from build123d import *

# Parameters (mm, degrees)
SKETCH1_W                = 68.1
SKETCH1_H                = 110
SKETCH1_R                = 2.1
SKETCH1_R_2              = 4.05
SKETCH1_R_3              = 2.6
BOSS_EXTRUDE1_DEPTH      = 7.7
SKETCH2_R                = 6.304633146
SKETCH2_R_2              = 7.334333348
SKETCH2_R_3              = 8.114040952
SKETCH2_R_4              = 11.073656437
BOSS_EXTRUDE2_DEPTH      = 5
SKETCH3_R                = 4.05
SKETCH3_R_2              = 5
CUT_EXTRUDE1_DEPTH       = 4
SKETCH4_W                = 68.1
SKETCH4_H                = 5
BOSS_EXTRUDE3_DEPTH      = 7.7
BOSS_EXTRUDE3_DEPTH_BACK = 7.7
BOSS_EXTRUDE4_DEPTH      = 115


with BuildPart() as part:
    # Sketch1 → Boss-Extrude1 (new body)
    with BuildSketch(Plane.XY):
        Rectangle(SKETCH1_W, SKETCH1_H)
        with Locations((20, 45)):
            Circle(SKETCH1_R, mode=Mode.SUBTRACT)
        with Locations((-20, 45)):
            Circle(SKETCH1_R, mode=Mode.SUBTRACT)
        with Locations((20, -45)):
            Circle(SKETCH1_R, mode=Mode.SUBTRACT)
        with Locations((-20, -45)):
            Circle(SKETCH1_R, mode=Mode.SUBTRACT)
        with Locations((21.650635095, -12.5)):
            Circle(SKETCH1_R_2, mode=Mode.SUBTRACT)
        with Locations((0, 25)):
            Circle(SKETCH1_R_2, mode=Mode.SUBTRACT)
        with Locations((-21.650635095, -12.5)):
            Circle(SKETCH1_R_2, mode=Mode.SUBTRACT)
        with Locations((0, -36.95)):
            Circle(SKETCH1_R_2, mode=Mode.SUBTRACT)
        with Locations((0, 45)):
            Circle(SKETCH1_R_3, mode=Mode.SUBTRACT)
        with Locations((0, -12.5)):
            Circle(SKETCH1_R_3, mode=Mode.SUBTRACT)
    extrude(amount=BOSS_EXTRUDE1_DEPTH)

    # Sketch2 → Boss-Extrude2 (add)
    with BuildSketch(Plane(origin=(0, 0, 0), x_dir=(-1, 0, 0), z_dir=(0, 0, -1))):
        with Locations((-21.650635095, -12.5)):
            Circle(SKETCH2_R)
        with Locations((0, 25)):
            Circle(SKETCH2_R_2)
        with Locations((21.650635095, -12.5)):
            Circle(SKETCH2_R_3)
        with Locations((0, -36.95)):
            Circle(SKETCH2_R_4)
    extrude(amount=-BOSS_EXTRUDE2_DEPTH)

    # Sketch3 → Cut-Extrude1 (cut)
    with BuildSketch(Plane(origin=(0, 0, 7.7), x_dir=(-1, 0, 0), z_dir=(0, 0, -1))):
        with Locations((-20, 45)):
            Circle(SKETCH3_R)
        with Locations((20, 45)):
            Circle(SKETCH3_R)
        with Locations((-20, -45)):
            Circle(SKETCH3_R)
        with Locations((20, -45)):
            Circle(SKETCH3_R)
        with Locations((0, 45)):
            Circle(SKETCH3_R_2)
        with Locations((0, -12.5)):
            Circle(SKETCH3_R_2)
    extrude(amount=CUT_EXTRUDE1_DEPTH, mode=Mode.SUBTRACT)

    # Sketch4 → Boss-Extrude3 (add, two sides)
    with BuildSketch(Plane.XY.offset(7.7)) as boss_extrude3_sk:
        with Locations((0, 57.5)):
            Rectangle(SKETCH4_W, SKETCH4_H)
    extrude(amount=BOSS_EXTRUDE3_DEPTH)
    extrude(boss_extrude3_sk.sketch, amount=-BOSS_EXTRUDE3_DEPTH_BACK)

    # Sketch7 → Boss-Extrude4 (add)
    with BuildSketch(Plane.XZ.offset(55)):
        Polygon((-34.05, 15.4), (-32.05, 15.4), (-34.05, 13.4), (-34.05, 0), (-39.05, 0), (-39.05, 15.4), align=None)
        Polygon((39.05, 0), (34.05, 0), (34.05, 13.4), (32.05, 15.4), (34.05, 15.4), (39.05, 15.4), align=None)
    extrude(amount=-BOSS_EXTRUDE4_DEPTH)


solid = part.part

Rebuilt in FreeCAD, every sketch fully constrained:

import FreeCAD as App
import Part
import Sketcher

V = App.Vector


def add_polygon(sketch, points):
    """Adds a closed chain of lines whose ends are joined by coincident constraints."""
    first, n = sketch.GeometryCount, len(points)
    for a, b in zip(points, points[1:] + points[:1]):
        sketch.addGeometry(Part.LineSegment(App.Vector(*a, 0), App.Vector(*b, 0)), False)
    for i in range(n):
        sketch.addConstraint(Sketcher.Constraint("Coincident", first + i, 2, first + (i + 1) % n, 1))

doc = App.newDocument("Part")
body = doc.addObject("PartDesign::Body", "Body")

# Sketch on XY plane
sketch1 = doc.addObject("Sketcher::SketchObject", "Sketch")
body.addObject(sketch1)
sketch1.AttachmentSupport = (doc.XY_Plane, [""])
sketch1.MapMode = "FlatFace"
add_polygon(sketch1, [(-34, 55), (-34, -55), (34, -55), (34, 55)])  # lines 0-3
sketch1.addGeometry(Part.Circle(V(-20, -45, 0), V(0, 0, 1), 2.1), False)  # 4
sketch1.addGeometry(Part.Circle(V(-21.7, -12.5, 0), V(0, 0, 1), 4), False)  # 5
sketch1.addGeometry(Part.Circle(V(0, -37, 0), V(0, 0, 1), 4), False)  # 6
sketch1.addGeometry(Part.Circle(V(20, -45, 0), V(0, 0, 1), 2.1), False)  # 7
sketch1.addGeometry(Part.Circle(V(0, -12.5, 0), V(0, 0, 1), 2.6), False)  # 8
sketch1.addGeometry(Part.Circle(V(21.7, -12.5, 0), V(0, 0, 1), 4), False)  # 9
sketch1.addGeometry(Part.Circle(V(-20, 45, 0), V(0, 0, 1), 2.1), False)  # 10
sketch1.addGeometry(Part.Circle(V(0, 25, 0), V(0, 0, 1), 4), False)  # 11
sketch1.addGeometry(Part.Circle(V(0, 45, 0), V(0, 0, 1), 2.6), False)  # 12
sketch1.addGeometry(Part.Circle(V(20, 45, 0), V(0, 0, 1), 2.1), False)  # 13
sketch1.addConstraint([
    Sketcher.Constraint("Vertical", 0),
    Sketcher.Constraint("Horizontal", 1),
    Sketcher.Constraint("Vertical", 2),
    Sketcher.Constraint("Horizontal", 3),
    Sketcher.Constraint("Equal", 5, 6),
    Sketcher.Constraint("Equal", 4, 7),
    Sketcher.Constraint("Equal", 6, 9),
    Sketcher.Constraint("Equal", 7, 10),
    Sketcher.Constraint("Equal", 9, 11),
    Sketcher.Constraint("Equal", 8, 12),
    Sketcher.Constraint("Equal", 10, 13),
    Sketcher.Constraint("Symmetric", 7, 3, 10, 3, -1, 1),
    Sketcher.Constraint("Symmetric", 4, 3, 13, 3, -1, 1),
    Sketcher.Constraint("Symmetric", 0, 2, 2, 2, -1, 1),
    Sketcher.Constraint("Symmetric", 4, 3, 7, 3, -2),
    Sketcher.Constraint("Symmetric", 5, 3, 9, 3, -2),
    Sketcher.Constraint("PointOnObject", 6, 3, -2),
    Sketcher.Constraint("PointOnObject", 8, 3, -2),
    Sketcher.Constraint("PointOnObject", 11, 3, -2),
    Sketcher.Constraint("PointOnObject", 12, 3, -2),
    Sketcher.Constraint("Horizontal", 5, 3, 8, 3),
    Sketcher.Constraint("Horizontal", 10, 3, 12, 3),
    Sketcher.Constraint("Diameter", 4, 4.2),
    Sketcher.Constraint("Diameter", 5, 8.1),
    Sketcher.Constraint("Diameter", 8, 5.2),
    Sketcher.Constraint("DistanceY", 0, 2, 0, 1, 110.0),
    Sketcher.Constraint("DistanceX", 1, 1, 1, 2, 68.1),
    Sketcher.Constraint("DistanceX", 4, 3, -1, 1, 20.0),
    Sketcher.Constraint("DistanceY", 4, 3, -1, 1, 45.0),
    Sketcher.Constraint("DistanceY", -1, 1, 11, 3, 25.0),
    Sketcher.Constraint("DistanceY", 5, 3, -1, 1, 12.5),
    Sketcher.Constraint("DistanceY", 6, 3, -1, 1, 36.95),
    Sketcher.Constraint("DistanceX", 5, 3, 9, 3, 43.30127),
])
pad1 = doc.addObject("PartDesign::Pad", "Pad")
body.addObject(pad1)
pad1.Profile = sketch1
pad1.Length = 7.7

# Sketch on XY plane
sketch2 = doc.addObject("Sketcher::SketchObject", "Sketch001")
body.addObject(sketch2)
sketch2.AttachmentSupport = (doc.XY_Plane, [""])
sketch2.MapMode = "FlatFace"
sketch2.addGeometry([
    Part.Circle(V(22, -12, 0), V(0, 0, 1), 6),
    Part.Circle(V(0, 25, 0), V(0, 0, 1), 7),
    Part.Circle(V(-22, -12, 0), V(0, 0, 1), 8),
    Part.Circle(V(0, -37, 0), V(0, 0, 1), 11),
], False)
sketch2.addConstraint([
    Sketcher.Constraint("Symmetric", 0, 3, 2, 3, -2),
    Sketcher.Constraint("PointOnObject", 1, 3, -2),
    Sketcher.Constraint("PointOnObject", 3, 3, -2),
    Sketcher.Constraint("DistanceY", -1, 1, 1, 3, 25.0),
    Sketcher.Constraint("DistanceY", 0, 3, -1, 1, 12.5),
    Sketcher.Constraint("Diameter", 2, 16.228082),
    Sketcher.Constraint("DistanceY", 3, 3, -1, 1, 36.95),
    Sketcher.Constraint("Diameter", 0, 12.609266),
    Sketcher.Constraint("Diameter", 1, 14.668667),
    Sketcher.Constraint("Diameter", 3, 22.147313),
    Sketcher.Constraint("DistanceX", 2, 3, 0, 3, 43.30127),
])
pad2 = doc.addObject("PartDesign::Pad", "Pad001")
body.addObject(pad2)
pad2.Profile = sketch2
pad2.Length = 5

# Sketch on XY plane
sketch3 = doc.addObject("Sketcher::SketchObject", "Sketch002")
body.addObject(sketch3)
sketch3.AttachmentSupport = (doc.XY_Plane, [""])
sketch3.MapMode = "FlatFace"
sketch3.AttachmentOffset = App.Placement(V(0, 0, 7.7), App.Rotation())
sketch3.addGeometry([
    Part.Circle(V(20, 45, 0), V(0, 0, 1), 4),  # 0
    Part.Circle(V(-20, 45, 0), V(0, 0, 1), 4),  # 1
    Part.Circle(V(20, -45, 0), V(0, 0, 1), 4),  # 2
    Part.Circle(V(-20, -45, 0), V(0, 0, 1), 4),  # 3
    Part.Circle(V(0, 45, 0), V(0, 0, 1), 5),  # 4
    Part.Circle(V(0, -12.5, 0), V(0, 0, 1), 5),  # 5
], False)
sketch3.addConstraint([
    Sketcher.Constraint("Equal", 0, 1),
    Sketcher.Constraint("Equal", 1, 2),
    Sketcher.Constraint("Equal", 2, 3),
    Sketcher.Constraint("Equal", 4, 5),
    Sketcher.Constraint("Symmetric", 1, 3, 2, 3, -1, 1),
    Sketcher.Constraint("Symmetric", 0, 3, 3, 3, -1, 1),
    Sketcher.Constraint("Symmetric", 0, 3, 1, 3, -2),
    Sketcher.Constraint("PointOnObject", 4, 3, -2),
    Sketcher.Constraint("PointOnObject", 5, 3, -2),
    Sketcher.Constraint("Horizontal", 1, 3, 4, 3),
    Sketcher.Constraint("Diameter", 4, 10.0),
    Sketcher.Constraint("Diameter", 0, 8.1),
    Sketcher.Constraint("DistanceX", -1, 1, 0, 3, 20.0),
    Sketcher.Constraint("DistanceY", -1, 1, 0, 3, 45.0),
    Sketcher.Constraint("DistanceY", 5, 3, -1, 1, 12.5),
])
pocket1 = doc.addObject("PartDesign::Pocket", "Pocket")
body.addObject(pocket1)
pocket1.Profile = sketch3
pocket1.Length = 4

# Sketch on XY plane
sketch4 = doc.addObject("Sketcher::SketchObject", "Sketch003")
body.addObject(sketch4)
sketch4.AttachmentSupport = (doc.XY_Plane, [""])
sketch4.MapMode = "FlatFace"
sketch4.AttachmentOffset = App.Placement(V(0, 0, 7.7), App.Rotation())
add_polygon(sketch4, [(-34, 60), (-34, 55), (34, 55), (34, 60)])  # lines 0-3
sketch4.addConstraint([
    Sketcher.Constraint("Vertical", 0),
    Sketcher.Constraint("Horizontal", 1),
    Sketcher.Constraint("Vertical", 2),
    Sketcher.Constraint("Horizontal", 3),
    Sketcher.Constraint("DistanceY", 0, 2, 0, 1, 5.0),
    Sketcher.Constraint("DistanceX", 1, 1, 1, 2, 68.1),
    Sketcher.Constraint("DistanceY", -1, 1, 0, 2, 55.0),
    Sketcher.Constraint("DistanceX", 0, 2, -1, 1, 34.05),
])
pad3 = doc.addObject("PartDesign::Pad", "Pad002")
body.addObject(pad3)
pad3.Profile = sketch4
pad3.Type = "TwoLengths"
pad3.Length = 7.7
pad3.Length2 = 7.7

# Sketch on XZ plane
sketch5 = doc.addObject("Sketcher::SketchObject", "Sketch004")
body.addObject(sketch5)
sketch5.AttachmentSupport = (doc.XZ_Plane, [""])
sketch5.MapMode = "FlatFace"
sketch5.AttachmentOffset = App.Placement(V(0, 0, 55), App.Rotation())
add_polygon(sketch5, [(-32, 15.4), (-39, 15.4), (-39, 0), (-34, 0), (-34, 13.4)])  # lines 0-4
add_polygon(sketch5, [(34, 0), (39, 0), (39, 15.4), (32, 15.4), (34, 13.4)])  # lines 5-9
sketch5.addConstraint([
    Sketcher.Constraint("Horizontal", 0),
    Sketcher.Constraint("Vertical", 1),
    Sketcher.Constraint("Horizontal", 2),
    Sketcher.Constraint("Vertical", 3),
    Sketcher.Constraint("Horizontal", 5),
    Sketcher.Constraint("Vertical", 6),
    Sketcher.Constraint("Horizontal", 7),
    Sketcher.Constraint("Vertical", 9),
    Sketcher.Constraint("Symmetric", 1, 2, 5, 2, -1, 1),
    Sketcher.Constraint("Symmetric", 4, 2, 7, 2, -2),
    Sketcher.Constraint("Symmetric", 3, 2, 8, 2, -2),
    Sketcher.Constraint("PointOnObject", 1, 2, -1),
    Sketcher.Constraint("Perpendicular", 4, 8),
    Sketcher.Constraint("DistanceX", 0, 2, 0, 1, 7.0),
    Sketcher.Constraint("DistanceX", 2, 1, 2, 2, 5.0),
    Sketcher.Constraint("DistanceY", 1, 2, 1, 1, 15.4),
    Sketcher.Constraint("DistanceX", 4, 2, 5, 2, 71.1),
])
pad4 = doc.addObject("PartDesign::Pad", "Pad003")
body.addObject(pad4)
pad4.Profile = sketch5
pad4.Length = 115
pad4.Reversed = True

doc.recompute()
